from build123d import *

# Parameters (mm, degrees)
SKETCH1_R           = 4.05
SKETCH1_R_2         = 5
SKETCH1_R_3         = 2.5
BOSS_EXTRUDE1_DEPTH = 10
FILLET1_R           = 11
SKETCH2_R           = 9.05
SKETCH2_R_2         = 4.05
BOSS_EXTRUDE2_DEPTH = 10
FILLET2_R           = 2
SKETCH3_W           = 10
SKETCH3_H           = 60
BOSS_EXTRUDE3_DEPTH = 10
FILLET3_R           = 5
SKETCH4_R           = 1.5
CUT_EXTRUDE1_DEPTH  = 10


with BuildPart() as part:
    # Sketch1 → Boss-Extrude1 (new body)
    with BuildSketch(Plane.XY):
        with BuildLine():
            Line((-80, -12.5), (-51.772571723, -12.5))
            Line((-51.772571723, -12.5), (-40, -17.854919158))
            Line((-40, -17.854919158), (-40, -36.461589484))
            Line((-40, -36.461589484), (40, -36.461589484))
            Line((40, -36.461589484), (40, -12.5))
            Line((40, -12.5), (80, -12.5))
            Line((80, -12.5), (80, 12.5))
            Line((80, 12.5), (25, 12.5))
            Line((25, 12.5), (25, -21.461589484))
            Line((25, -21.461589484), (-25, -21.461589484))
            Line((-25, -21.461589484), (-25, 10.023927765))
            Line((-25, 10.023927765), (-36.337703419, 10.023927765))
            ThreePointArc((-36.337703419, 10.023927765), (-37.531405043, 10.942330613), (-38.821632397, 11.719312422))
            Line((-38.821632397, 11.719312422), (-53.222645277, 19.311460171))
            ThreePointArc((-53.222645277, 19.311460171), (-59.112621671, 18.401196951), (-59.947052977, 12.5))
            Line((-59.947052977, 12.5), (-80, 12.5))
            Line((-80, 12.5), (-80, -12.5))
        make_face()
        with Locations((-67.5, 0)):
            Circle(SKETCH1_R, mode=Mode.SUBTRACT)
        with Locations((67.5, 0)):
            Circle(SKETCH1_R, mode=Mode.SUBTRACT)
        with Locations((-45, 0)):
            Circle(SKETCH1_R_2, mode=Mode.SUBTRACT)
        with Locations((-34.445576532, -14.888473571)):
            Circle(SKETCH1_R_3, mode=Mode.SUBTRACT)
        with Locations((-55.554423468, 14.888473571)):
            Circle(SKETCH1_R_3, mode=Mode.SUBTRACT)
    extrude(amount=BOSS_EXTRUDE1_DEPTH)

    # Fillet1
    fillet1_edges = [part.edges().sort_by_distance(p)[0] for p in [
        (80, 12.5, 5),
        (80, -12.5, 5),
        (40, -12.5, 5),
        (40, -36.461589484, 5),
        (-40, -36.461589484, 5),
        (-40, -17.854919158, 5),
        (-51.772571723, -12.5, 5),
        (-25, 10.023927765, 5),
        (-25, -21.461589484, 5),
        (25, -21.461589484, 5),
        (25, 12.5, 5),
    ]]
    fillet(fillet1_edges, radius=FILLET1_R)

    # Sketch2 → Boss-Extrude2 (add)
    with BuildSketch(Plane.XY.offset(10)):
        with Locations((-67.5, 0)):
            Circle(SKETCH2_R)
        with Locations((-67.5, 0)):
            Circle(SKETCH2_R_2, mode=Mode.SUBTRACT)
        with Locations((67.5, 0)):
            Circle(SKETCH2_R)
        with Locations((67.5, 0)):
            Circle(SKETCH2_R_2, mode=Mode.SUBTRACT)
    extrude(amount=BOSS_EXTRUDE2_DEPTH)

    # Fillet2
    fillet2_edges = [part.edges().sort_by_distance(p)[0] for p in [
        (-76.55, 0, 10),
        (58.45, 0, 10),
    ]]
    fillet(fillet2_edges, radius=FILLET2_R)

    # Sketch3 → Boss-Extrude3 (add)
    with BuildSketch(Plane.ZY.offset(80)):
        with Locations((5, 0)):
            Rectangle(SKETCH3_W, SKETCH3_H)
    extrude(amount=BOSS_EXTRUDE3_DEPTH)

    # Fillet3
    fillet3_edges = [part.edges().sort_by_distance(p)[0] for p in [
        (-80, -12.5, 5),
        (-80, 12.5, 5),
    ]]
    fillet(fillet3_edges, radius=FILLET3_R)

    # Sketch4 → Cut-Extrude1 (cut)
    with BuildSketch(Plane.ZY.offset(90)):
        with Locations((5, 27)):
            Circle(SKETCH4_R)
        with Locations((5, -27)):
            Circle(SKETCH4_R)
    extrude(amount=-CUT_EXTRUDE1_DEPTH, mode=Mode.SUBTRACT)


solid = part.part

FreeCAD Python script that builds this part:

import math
import FreeCAD as App
import Part
import Sketcher
from FreeCAD import Vector
Q = App.Units.Quantity


def edges_at(feature, points):
    """Names of the edges that pass closest to the given points."""
    edges = feature.Shape.Edges
    near = lambda p: min(range(len(edges)), key=lambda i: edges[i].distToShape(Part.Vertex(*p))[0])
    return sorted({f"Edge{near(p) + 1}" for p in points})


def add_polygon(sketch, points):
    """Adds a closed chain of lines whose ends are joined by coincident constraints."""
    first, n = sketch.GeometryCount, len(points)
    for a, b in zip(points, points[1:] + points[:1]):
        sketch.addGeometry(Part.LineSegment(App.Vector(*a, 0), App.Vector(*b, 0)), False)
    for i in range(n):
        sketch.addConstraint(Sketcher.Constraint("Coincident", first + i, 2, first + (i + 1) % n, 1))

doc = App.newDocument("Part")
body = doc.addObject("PartDesign::Body", "Body")

# Sketch on XY plane
sketch1 = doc.addObject("Sketcher::SketchObject", "Sketch")
body.addObject(sketch1)
sketch1.AttachmentSupport = (doc.XY_Plane, [""])
sketch1.MapMode = "FlatFace"
sketch1.addGeometry([
    Part.LineSegment(Vector(-80, -12.5, 0), Vector(-51.8, -12.5, 0)),  # 0
    Part.LineSegment(Vector(-51.8, -12.5, 0), Vector(-40, -17.9, 0)),  # 1
    Part.LineSegment(Vector(-40, -17.9, 0), Vector(-40, -36.5, 0)),  # 2
    Part.LineSegment(Vector(-40, -36.5, 0), Vector(40, -36.5, 0)),  # 3
    Part.LineSegment(Vector(40, -36.5, 0), Vector(40, -12.5, 0)),  # 4
    Part.LineSegment(Vector(40, -12.5, 0), Vector(80, -12.5, 0)),  # 5
    Part.LineSegment(Vector(80, -12.5, 0), Vector(80, 12.5, 0)),  # 6
    Part.LineSegment(Vector(80, 12.5, 0), Vector(25, 12.5, 0)),  # 7
    Part.LineSegment(Vector(25, 12.5, 0), Vector(25, -21.5, 0)),  # 8
    Part.LineSegment(Vector(25, -21.5, 0), Vector(-25, -21.5, 0)),  # 9
    Part.LineSegment(Vector(-25, -21.5, 0), Vector(-25, 10, 0)),  # 10
    Part.LineSegment(Vector(-25, 10, 0), Vector(-36.3, 10, 0)),  # 11
    Part.ArcOfCircle(Part.Circle(Vector(-45, 0, 0), Vector(0, 0, 1), 13.2), math.radians(49.17), math.radians(62.2)),  # 12
    Part.LineSegment(Vector(-38.8, 11.7, 0), Vector(-53.2, 19.3, 0)),  # 13
    Part.ArcOfCircle(Part.Circle(Vector(-55.6, 14.9, 0), Vector(0, 0, 1), 5), math.radians(62), math.radians(209)),  # 14
    Part.LineSegment(Vector(-59.9, 12.5, 0), Vector(-80, 12.5, 0)),  # 15
    Part.LineSegment(Vector(-80, 12.5, 0), Vector(-80, -12.5, 0)),  # 16
    Part.Circle(Vector(-34.4, -14.9, 0), Vector(0, 0, 1), 2.5),  # 17
    Part.Circle(Vector(-67.5, 0, 0), Vector(0, 0, 1), 4),  # 18
    Part.Circle(Vector(-45, 0, 0), Vector(0, 0, 1), 5),  # 19
    Part.Circle(Vector(-55.6, 14.9, 0), Vector(0, 0, 1), 2.5),  # 20
    Part.Circle(Vector(67.5, 0, 0), Vector(0, 0, 1), 4),  # 21
], False)
sketch1.addConstraint([
    Sketcher.Constraint("Coincident", 0, 2, 1, 1),
    Sketcher.Constraint("Coincident", 1, 2, 2, 1),
    Sketcher.Constraint("Coincident", 2, 2, 3, 1),
    Sketcher.Constraint("Coincident", 3, 2, 4, 1),
    Sketcher.Constraint("Coincident", 4, 2, 5, 1),
    Sketcher.Constraint("Coincident", 5, 2, 6, 1),
    Sketcher.Constraint("Coincident", 6, 2, 7, 1),
    Sketcher.Constraint("Coincident", 7, 2, 8, 1),
    Sketcher.Constraint("Coincident", 8, 2, 9, 1),
    Sketcher.Constraint("Coincident", 9, 2, 10, 1),
    Sketcher.Constraint("Coincident", 10, 2, 11, 1),
    Sketcher.Constraint("Coincident", 11, 2, 12, 1),
    Sketcher.Constraint("Tangent", 12, 2, 13, 1),
    Sketcher.Constraint("Tangent", 13, 2, 14, 1),
    Sketcher.Constraint("Coincident", 14, 2, 15, 1),
    Sketcher.Constraint("Coincident", 15, 2, 16, 1),
    Sketcher.Constraint("Coincident", 16, 2, 0, 1),
    Sketcher.Constraint("Horizontal", 0),
    Sketcher.Constraint("Vertical", 2),
    Sketcher.Constraint("Horizontal", 3),
    Sketcher.Constraint("Vertical", 4),
    Sketcher.Constraint("Horizontal", 5),
    Sketcher.Constraint("Vertical", 6),
    Sketcher.Constraint("Horizontal", 7),
    Sketcher.Constraint("Vertical", 8),
    Sketcher.Constraint("Horizontal", 9),
    Sketcher.Constraint("Vertical", 10),
    Sketcher.Constraint("Horizontal", 11),
    Sketcher.Constraint("Horizontal", 15),
    Sketcher.Constraint("Vertical", 16),
    Sketcher.Constraint("Coincident", 19, 3, 12, 3),
    Sketcher.Constraint("Coincident", 20, 3, 14, 3),
    Sketcher.Constraint("Equal", 14, 19),
    Sketcher.Constraint("Equal", 17, 20),
    Sketcher.Constraint("Equal", 18, 21),
    Sketcher.Constraint("Symmetric", 18, 3, 21, 3, -1, 1),
    Sketcher.Constraint("Symmetric", 5, 2, 15, 2, -1, 1),
    Sketcher.Constraint("PointOnObject", 12, 3, -1),
    Sketcher.Constraint("PointOnObject", 18, 3, -1),
    Sketcher.Constraint("Horizontal", 0, 2, 4, 2),
    Sketcher.Constraint("Horizontal", 7, 2, 14, 2),
    Sketcher.Constraint("Diameter", 17, Q("5 mm")),
    Sketcher.Constraint("Diameter", 19, Q("10 mm")),
    Sketcher.Constraint("Diameter", 18, Q("8.1 mm")),
    Sketcher.Constraint("DistanceX", 3, 1, 3, 2, Q("80 mm")),
    Sketcher.Constraint("DistanceX", 5, 1, 5, 2, Q("40 mm")),
    Sketcher.Constraint("DistanceX", 7, 2, 7, 1, Q("55 mm")),
    Sketcher.Constraint("DistanceX", 9, 2, 9, 1, Q("50 mm")),
    Sketcher.Constraint("DistanceY", 6, 1, 6, 2, Q("25 mm")),
    Sketcher.Constraint("DistanceX", 12, 3, -1, 1, Q("45 mm")),
    Sketcher.Constraint("DistanceX", 1, 2, -1, 1, Q("40 mm")),
    Sketcher.Constraint("DistanceY", 3, 2, 8, 2, Q("15 mm")),
    Sketcher.Constraint("DistanceX", 18, 3, -1, 1, Q("67.5 mm")),
    Sketcher.Constraint("Radius", 12, Q("13.248189 mm")),
    Sketcher.Constraint("DistanceX", 0, 1, 0, 2, Q("28.227428 mm")),
    Sketcher.Constraint("DistanceY", 2, 2, 2, 1, Q("18.60667 mm")),
    Sketcher.Constraint("DistanceY", 4, 1, 4, 2, Q("23.961589 mm")),
    Sketcher.Constraint("DistanceY", 17, 3, 10, 2, Q("24.912401 mm")),
    Sketcher.Constraint("Distance", 13, Q("16.279738 mm")),
    Sketcher.Constraint("DistanceX", 11, 2, 11, 1, Q("11.337703 mm")),
    Sketcher.Constraint("DistanceX", 15, 2, 15, 1, Q("20.052947 mm")),
    Sketcher.Constraint("DistanceX", 17, 3, -1, 1, Q("34.445577 mm")),
])
pad1 = doc.addObject("PartDesign::Pad", "Pad")
body.addObject(pad1)
pad1.Profile = sketch1
pad1.Length = 10
doc.recompute()

fillet = doc.addObject("PartDesign::Fillet", "Fillet")
body.addObject(fillet)
fillet.Base = (pad1, edges_at(pad1, [
    (80, 12.5, 5),
    (80, -12.5, 5),
    (40, -12.5, 5),
    (40, -36.462, 5),
    (-40, -36.462, 5),
    (-40, -17.855, 5),
    (-51.773, -12.5, 5),
    (-25, 10.024, 5),
    (-25, -21.462, 5),
    (25, -21.462, 5),
    (25, 12.5, 5),
]))
fillet.Radius = 11

# Sketch on XY plane
sketch2 = doc.addObject("Sketcher::SketchObject", "Sketch001")
body.addObject(sketch2)
sketch2.AttachmentSupport = (doc.XY_Plane, [""])
sketch2.MapMode = "FlatFace"
sketch2.AttachmentOffset = App.Placement(Vector(0, 0, 10), App.Rotation())
sketch2.addGeometry([
    Part.Circle(Vector(-67.5, 0, 0), Vector(0, 0, 1), 9.1),
    Part.Circle(Vector(-67.5, 0, 0), Vector(0, 0, 1), 4),
    Part.Circle(Vector(67.5, 0, 0), Vector(0, 0, 1), 9.1),
    Part.Circle(Vector(67.5, 0, 0), Vector(0, 0, 1), 4),
], False)
sketch2.addConstraint([
    Sketcher.Constraint("Coincident", 1, 3, 0, 3),
    Sketcher.Constraint("Coincident", 3, 3, 2, 3),
    Sketcher.Constraint("Equal", 0, 2),
    Sketcher.Constraint("Equal", 1, 3),
    Sketcher.Constraint("Symmetric", 0, 3, 2, 3, -1, 1),
    Sketcher.Constraint("PointOnObject", 0, 3, -1),
    Sketcher.Constraint("Diameter", 0, Q("18.1 mm")),
    Sketcher.Constraint("Diameter", 1, Q("8.1 mm")),
    Sketcher.Constraint("DistanceX", 0, 3, 2, 3, Q("135 mm")),
])
pad2 = doc.addObject("PartDesign::Pad", "Pad001")
body.addObject(pad2)
pad2.Profile = sketch2
pad2.Length = 10
doc.recompute()

fillet2 = doc.addObject("PartDesign::Fillet", "Fillet001")
body.addObject(fillet2)
fillet2.Base = (pad2, edges_at(pad2, [(-76.55, 0, 10), (58.45, 0, 10)]))
fillet2.Radius = 2

# Sketch on YZ plane
sketch3 = doc.addObject("Sketcher::SketchObject", "Sketch002")
body.addObject(sketch3)
sketch3.AttachmentSupport = (doc.YZ_Plane, [""])
sketch3.MapMode = "FlatFace"
sketch3.AttachmentOffset = App.Placement(Vector(0, 0, -80), App.Rotation())
add_polygon(sketch3, [(30, 0), (-30, 0), (-30, 10), (30, 10)])  # lines 0-3
sketch3.addConstraint([
    Sketcher.Constraint("Horizontal", 0),
    Sketcher.Constraint("Vertical", 1),
    Sketcher.Constraint("Horizontal", 2),
    Sketcher.Constraint("Vertical", 3),
    Sketcher.Constraint("Symmetric", 0, 2, 3, 2, -1, 1),
    Sketcher.Constraint("DistanceX", 0, 2, 0, 1, Q("60 mm")),
    Sketcher.Constraint("DistanceY", 1, 1, 1, 2, Q("10 mm")),
])
pad3 = doc.addObject("PartDesign::Pad", "Pad002")
body.addObject(pad3)
pad3.Profile = sketch3
pad3.Length = 10
pad3.Reversed = True
doc.recompute()

fillet3 = doc.addObject("PartDesign::Fillet", "Fillet002")
body.addObject(fillet3)
fillet3.Base = (pad3, edges_at(pad3, [(-80, -12.5, 5), (-80, 12.5, 5)]))
fillet3.Radius = 5

# Sketch on YZ plane
sketch4 = doc.addObject("Sketcher::SketchObject", "Sketch003")
body.addObject(sketch4)
sketch4.AttachmentSupport = (doc.YZ_Plane, [""])
sketch4.MapMode = "FlatFace"
sketch4.AttachmentOffset = App.Placement(Vector(0, 0, -90), App.Rotation())
sketch4.addGeometry([
    Part.Circle(Vector(27, 5, 0), Vector(0, 0, 1), 1.5),
    Part.Circle(Vector(-27, 5, 0), Vector(0, 0, 1), 1.5),
], False)
sketch4.addConstraint([
    Sketcher.Constraint("Equal", 0, 1),
    Sketcher.Constraint("Symmetric", 0, 3, 1, 3, -2),
    Sketcher.Constraint("Diameter", 0, Q("3 mm")),
    Sketcher.Constraint("DistanceX", -1, 1, 0, 3, Q("27 mm")),
    Sketcher.Constraint("DistanceY", -1, 1, 0, 3, Q("5 mm")),
])
pocket1 = doc.addObject("PartDesign::Pocket", "Pocket")
body.addObject(pocket1)
pocket1.Profile = sketch4
pocket1.Length = 10
pocket1.Reversed = True

doc.recompute()
